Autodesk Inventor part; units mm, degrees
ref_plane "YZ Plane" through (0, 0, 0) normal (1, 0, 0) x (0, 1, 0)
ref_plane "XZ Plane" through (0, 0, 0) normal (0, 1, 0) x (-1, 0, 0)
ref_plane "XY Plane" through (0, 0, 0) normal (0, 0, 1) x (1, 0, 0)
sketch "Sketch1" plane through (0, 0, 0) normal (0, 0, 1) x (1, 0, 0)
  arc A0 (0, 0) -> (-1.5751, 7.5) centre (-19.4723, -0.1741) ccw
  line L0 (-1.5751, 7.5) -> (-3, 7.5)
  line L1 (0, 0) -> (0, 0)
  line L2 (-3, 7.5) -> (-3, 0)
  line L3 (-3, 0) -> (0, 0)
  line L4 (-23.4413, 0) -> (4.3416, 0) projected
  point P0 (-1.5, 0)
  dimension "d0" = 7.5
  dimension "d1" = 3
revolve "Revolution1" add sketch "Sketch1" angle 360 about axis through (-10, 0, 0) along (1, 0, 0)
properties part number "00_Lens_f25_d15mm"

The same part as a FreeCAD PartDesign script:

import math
import FreeCAD as App
import Part
import Sketcher
Q = App.Units.Quantity

doc = App.newDocument("Part")
body = doc.addObject("PartDesign::Body", "Body")

# Sketch on XY plane
sketch1 = body.newObject("Sketcher::SketchObject", "Sketch")
sketch1.AttachmentSupport = (doc.getObject("XY_Plane"), [""])
sketch1.MapMode = "FlatFace"
sketch1.addGeometry(Part.LineSegment(App.Vector(-3, 0, 0), App.Vector(0, 0, 0)), False)
sketch1.addGeometry(Part.ArcOfCircle(Part.Circle(App.Vector(-19.5, -0.2, 0), App.Vector(0, 0, 1), 19.5), math.radians(1), math.radians(23)), False)
sketch1.addGeometry(Part.LineSegment(App.Vector(-1.6, 7.5, 0), App.Vector(-3, 7.5, 0)), False)
sketch1.addGeometry(Part.LineSegment(App.Vector(-3, 7.5, 0), App.Vector(-3, 0, 0)), False)
sketch1.addConstraint(Sketcher.Constraint("Coincident", 0, 2, 1, 1))
sketch1.addConstraint(Sketcher.Constraint("Coincident", 1, 2, 2, 1))
sketch1.addConstraint(Sketcher.Constraint("Coincident", 2, 2, 3, 1))
sketch1.addConstraint(Sketcher.Constraint("Coincident", 3, 2, 0, 1))
sketch1.addConstraint(Sketcher.Constraint("Horizontal", 0))
sketch1.addConstraint(Sketcher.Constraint("Horizontal", 2))
sketch1.addConstraint(Sketcher.Constraint("Vertical", 3))
sketch1.addConstraint(Sketcher.Constraint("Coincident", 0, 2, -1, 1))
sketch1.addConstraint(Sketcher.Constraint("DistanceX", 0, 1, 0, 2, Q("3 mm")))
sketch1.addConstraint(Sketcher.Constraint("DistanceY", 3, 2, 3, 1, Q("7.5 mm")))
sketch1.addConstraint(Sketcher.Constraint("Radius", 1, Q("19.473 mm")))
sketch1.addConstraint(Sketcher.Constraint("DistanceX", 2, 2, 2, 1, Q("1.425 mm")))
revolution = body.newObject("PartDesign::Revolution", "Revolution")
revolution.Profile = sketch1
revolution.ReferenceAxis = (sketch1, ["H_Axis"])
revolution.Angle = 360

doc.recompute()
